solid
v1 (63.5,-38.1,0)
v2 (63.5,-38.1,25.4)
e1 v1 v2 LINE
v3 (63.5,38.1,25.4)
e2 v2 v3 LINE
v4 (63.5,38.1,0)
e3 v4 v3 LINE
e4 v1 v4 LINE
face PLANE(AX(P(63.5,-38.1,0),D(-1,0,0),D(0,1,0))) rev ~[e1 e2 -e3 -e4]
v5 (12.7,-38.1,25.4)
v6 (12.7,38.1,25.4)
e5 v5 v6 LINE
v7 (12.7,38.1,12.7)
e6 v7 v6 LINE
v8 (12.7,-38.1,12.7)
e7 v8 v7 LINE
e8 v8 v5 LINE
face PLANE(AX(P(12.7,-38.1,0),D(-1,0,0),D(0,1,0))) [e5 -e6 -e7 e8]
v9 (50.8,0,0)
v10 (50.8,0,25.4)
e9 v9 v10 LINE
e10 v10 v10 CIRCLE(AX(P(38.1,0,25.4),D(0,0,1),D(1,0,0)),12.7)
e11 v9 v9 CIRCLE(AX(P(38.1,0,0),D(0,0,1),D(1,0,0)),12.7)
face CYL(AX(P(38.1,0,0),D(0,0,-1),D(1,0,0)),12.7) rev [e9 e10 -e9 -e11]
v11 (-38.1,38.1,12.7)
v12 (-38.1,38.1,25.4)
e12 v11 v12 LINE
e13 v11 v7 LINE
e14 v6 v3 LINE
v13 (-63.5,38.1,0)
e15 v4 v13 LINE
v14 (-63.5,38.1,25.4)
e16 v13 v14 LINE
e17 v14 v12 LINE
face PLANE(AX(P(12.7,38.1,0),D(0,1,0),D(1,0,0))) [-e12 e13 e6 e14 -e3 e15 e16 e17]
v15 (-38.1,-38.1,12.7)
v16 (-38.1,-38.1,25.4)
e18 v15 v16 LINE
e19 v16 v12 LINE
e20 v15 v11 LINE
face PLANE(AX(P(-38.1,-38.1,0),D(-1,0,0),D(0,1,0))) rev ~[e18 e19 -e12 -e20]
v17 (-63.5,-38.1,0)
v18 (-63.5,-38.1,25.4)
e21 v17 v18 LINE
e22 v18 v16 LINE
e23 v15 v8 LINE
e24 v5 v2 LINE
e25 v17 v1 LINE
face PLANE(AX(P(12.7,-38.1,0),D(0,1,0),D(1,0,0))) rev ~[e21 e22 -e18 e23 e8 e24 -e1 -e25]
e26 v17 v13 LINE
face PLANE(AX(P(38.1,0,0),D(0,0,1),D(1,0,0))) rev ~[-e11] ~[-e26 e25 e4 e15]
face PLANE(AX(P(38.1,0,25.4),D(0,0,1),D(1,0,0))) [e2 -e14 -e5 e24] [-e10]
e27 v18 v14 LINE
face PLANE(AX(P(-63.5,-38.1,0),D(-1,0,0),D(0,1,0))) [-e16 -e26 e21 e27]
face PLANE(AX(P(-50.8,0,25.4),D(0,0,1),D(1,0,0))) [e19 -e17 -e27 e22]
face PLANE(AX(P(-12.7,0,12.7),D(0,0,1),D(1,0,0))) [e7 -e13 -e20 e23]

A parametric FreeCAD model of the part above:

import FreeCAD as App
import Part
import Sketcher

V = App.Vector
Q = App.Units.Quantity

doc = App.newDocument("Part")
body = doc.addObject("PartDesign::Body", "Body")

sketch1 = doc.addObject("Sketcher::SketchObject", "Sketch")
body.addObject(sketch1)
sketch1.AttachmentSupport = (doc.XY_Plane, [""])
sketch1.MapMode = "FlatFace"
sketch1.addGeometry([
    Part.LineSegment(V(-63.5, 38.1, 0), V(-63.5, -38.1, 0)),
    Part.LineSegment(V(-63.5, -38.1, 0), V(-38.1, -38.1, 0)),
    Part.LineSegment(V(-38.1, -38.1, 0), V(-38.1, 38.1, 0)),
    Part.LineSegment(V(-38.1, 38.1, 0), V(-63.5, 38.1, 0)),
], False)
sketch1.addConstraint([
    Sketcher.Constraint("Coincident", 0, 2, 1, 1),
    Sketcher.Constraint("Coincident", 1, 2, 2, 1),
    Sketcher.Constraint("Coincident", 2, 2, 3, 1),
    Sketcher.Constraint("Coincident", 3, 2, 0, 1),
    Sketcher.Constraint("Vertical", 0),
    Sketcher.Constraint("Horizontal", 1),
    Sketcher.Constraint("Vertical", 2),
    Sketcher.Constraint("Horizontal", 3),
    Sketcher.Constraint("DistanceX", 1, 1, 1, 2, Q("1 in")),
    Sketcher.Constraint("DistanceY", 0, 2, 0, 1, Q("3 in")),
    Sketcher.Constraint("DistanceX", 0, 2, -1, 1, Q("2.5 in")),
    Sketcher.Constraint("DistanceY", 0, 2, -1, 1, Q("1.5 in")),
])
pad1 = doc.addObject("PartDesign::Pad", "Pad")
body.addObject(pad1)
pad1.Profile = sketch1
pad1.Length = Q("1 in")

sketch2 = doc.addObject("Sketcher::SketchObject", "Sketch001")
body.addObject(sketch2)
sketch2.AttachmentSupport = (doc.XY_Plane, [""])
sketch2.MapMode = "FlatFace"
sketch2.addGeometry([
    Part.LineSegment(V(-38.1, 38.1, 0), V(-38.1, -38.1, 0)),
    Part.LineSegment(V(-38.1, -38.1, 0), V(12.7, -38.1, 0)),
    Part.LineSegment(V(12.7, -38.1, 0), V(12.7, 38.1, 0)),
    Part.LineSegment(V(12.7, 38.1, 0), V(-38.1, 38.1, 0)),
], False)
sketch2.addConstraint([
    Sketcher.Constraint("Coincident", 0, 2, 1, 1),
    Sketcher.Constraint("Coincident", 1, 2, 2, 1),
    Sketcher.Constraint("Coincident", 2, 2, 3, 1),
    Sketcher.Constraint("Coincident", 3, 2, 0, 1),
    Sketcher.Constraint("Vertical", 0),
    Sketcher.Constraint("Horizontal", 1),
    Sketcher.Constraint("Vertical", 2),
    Sketcher.Constraint("Horizontal", 3),
    Sketcher.Constraint("DistanceX", 1, 1, 1, 2, Q("2 in")),
    Sketcher.Constraint("DistanceY", 0, 2, 0, 1, Q("3 in")),
    Sketcher.Constraint("DistanceX", 0, 2, -1, 1, Q("1.5 in")),
    Sketcher.Constraint("DistanceY", 0, 2, -1, 1, Q("1.5 in")),
])
pad2 = doc.addObject("PartDesign::Pad", "Pad001")
body.addObject(pad2)
pad2.Profile = sketch2
pad2.Length = Q("0.5 in")

sketch3 = doc.addObject("Sketcher::SketchObject", "Sketch002")
body.addObject(sketch3)
sketch3.AttachmentSupport = (doc.XY_Plane, [""])
sketch3.MapMode = "FlatFace"
sketch3.addGeometry([
    Part.LineSegment(V(12.7, 38.1, 0), V(12.7, -38.1, 0)),
    Part.LineSegment(V(12.7, -38.1, 0), V(63.5, -38.1, 0)),
    Part.LineSegment(V(63.5, -38.1, 0), V(63.5, 38.1, 0)),
    Part.LineSegment(V(63.5, 38.1, 0), V(12.7, 38.1, 0)),
    Part.Circle(V(38.1, 0, 0), V(0, 0, 1), 12.7),
], False)
sketch3.addConstraint([
    Sketcher.Constraint("Coincident", 0, 2, 1, 1),
    Sketcher.Constraint("Coincident", 1, 2, 2, 1),
    Sketcher.Constraint("Coincident", 2, 2, 3, 1),
    Sketcher.Constraint("Coincident", 3, 2, 0, 1),
    Sketcher.Constraint("Vertical", 0),
    Sketcher.Constraint("Horizontal", 1),
    Sketcher.Constraint("Vertical", 2),
    Sketcher.Constraint("Horizontal", 3),
    Sketcher.Constraint("PointOnObject", 4, 3, -1),
    Sketcher.Constraint("Diameter", 4, Q("1 in")),
    Sketcher.Constraint("DistanceX", 1, 1, 1, 2, Q("2 in")),
    Sketcher.Constraint("DistanceY", 0, 2, 0, 1, Q("3 in")),
    Sketcher.Constraint("DistanceX", 0, 2, 4, 3, Q("1 in")),
    Sketcher.Constraint("DistanceX", -1, 1, 4, 3, Q("1.5 in")),
    Sketcher.Constraint("DistanceY", 0, 2, -1, 1, Q("1.5 in")),
])
pad3 = doc.addObject("PartDesign::Pad", "Pad002")
body.addObject(pad3)
pad3.Profile = sketch3
pad3.Length = Q("1 in")

doc.recompute()
